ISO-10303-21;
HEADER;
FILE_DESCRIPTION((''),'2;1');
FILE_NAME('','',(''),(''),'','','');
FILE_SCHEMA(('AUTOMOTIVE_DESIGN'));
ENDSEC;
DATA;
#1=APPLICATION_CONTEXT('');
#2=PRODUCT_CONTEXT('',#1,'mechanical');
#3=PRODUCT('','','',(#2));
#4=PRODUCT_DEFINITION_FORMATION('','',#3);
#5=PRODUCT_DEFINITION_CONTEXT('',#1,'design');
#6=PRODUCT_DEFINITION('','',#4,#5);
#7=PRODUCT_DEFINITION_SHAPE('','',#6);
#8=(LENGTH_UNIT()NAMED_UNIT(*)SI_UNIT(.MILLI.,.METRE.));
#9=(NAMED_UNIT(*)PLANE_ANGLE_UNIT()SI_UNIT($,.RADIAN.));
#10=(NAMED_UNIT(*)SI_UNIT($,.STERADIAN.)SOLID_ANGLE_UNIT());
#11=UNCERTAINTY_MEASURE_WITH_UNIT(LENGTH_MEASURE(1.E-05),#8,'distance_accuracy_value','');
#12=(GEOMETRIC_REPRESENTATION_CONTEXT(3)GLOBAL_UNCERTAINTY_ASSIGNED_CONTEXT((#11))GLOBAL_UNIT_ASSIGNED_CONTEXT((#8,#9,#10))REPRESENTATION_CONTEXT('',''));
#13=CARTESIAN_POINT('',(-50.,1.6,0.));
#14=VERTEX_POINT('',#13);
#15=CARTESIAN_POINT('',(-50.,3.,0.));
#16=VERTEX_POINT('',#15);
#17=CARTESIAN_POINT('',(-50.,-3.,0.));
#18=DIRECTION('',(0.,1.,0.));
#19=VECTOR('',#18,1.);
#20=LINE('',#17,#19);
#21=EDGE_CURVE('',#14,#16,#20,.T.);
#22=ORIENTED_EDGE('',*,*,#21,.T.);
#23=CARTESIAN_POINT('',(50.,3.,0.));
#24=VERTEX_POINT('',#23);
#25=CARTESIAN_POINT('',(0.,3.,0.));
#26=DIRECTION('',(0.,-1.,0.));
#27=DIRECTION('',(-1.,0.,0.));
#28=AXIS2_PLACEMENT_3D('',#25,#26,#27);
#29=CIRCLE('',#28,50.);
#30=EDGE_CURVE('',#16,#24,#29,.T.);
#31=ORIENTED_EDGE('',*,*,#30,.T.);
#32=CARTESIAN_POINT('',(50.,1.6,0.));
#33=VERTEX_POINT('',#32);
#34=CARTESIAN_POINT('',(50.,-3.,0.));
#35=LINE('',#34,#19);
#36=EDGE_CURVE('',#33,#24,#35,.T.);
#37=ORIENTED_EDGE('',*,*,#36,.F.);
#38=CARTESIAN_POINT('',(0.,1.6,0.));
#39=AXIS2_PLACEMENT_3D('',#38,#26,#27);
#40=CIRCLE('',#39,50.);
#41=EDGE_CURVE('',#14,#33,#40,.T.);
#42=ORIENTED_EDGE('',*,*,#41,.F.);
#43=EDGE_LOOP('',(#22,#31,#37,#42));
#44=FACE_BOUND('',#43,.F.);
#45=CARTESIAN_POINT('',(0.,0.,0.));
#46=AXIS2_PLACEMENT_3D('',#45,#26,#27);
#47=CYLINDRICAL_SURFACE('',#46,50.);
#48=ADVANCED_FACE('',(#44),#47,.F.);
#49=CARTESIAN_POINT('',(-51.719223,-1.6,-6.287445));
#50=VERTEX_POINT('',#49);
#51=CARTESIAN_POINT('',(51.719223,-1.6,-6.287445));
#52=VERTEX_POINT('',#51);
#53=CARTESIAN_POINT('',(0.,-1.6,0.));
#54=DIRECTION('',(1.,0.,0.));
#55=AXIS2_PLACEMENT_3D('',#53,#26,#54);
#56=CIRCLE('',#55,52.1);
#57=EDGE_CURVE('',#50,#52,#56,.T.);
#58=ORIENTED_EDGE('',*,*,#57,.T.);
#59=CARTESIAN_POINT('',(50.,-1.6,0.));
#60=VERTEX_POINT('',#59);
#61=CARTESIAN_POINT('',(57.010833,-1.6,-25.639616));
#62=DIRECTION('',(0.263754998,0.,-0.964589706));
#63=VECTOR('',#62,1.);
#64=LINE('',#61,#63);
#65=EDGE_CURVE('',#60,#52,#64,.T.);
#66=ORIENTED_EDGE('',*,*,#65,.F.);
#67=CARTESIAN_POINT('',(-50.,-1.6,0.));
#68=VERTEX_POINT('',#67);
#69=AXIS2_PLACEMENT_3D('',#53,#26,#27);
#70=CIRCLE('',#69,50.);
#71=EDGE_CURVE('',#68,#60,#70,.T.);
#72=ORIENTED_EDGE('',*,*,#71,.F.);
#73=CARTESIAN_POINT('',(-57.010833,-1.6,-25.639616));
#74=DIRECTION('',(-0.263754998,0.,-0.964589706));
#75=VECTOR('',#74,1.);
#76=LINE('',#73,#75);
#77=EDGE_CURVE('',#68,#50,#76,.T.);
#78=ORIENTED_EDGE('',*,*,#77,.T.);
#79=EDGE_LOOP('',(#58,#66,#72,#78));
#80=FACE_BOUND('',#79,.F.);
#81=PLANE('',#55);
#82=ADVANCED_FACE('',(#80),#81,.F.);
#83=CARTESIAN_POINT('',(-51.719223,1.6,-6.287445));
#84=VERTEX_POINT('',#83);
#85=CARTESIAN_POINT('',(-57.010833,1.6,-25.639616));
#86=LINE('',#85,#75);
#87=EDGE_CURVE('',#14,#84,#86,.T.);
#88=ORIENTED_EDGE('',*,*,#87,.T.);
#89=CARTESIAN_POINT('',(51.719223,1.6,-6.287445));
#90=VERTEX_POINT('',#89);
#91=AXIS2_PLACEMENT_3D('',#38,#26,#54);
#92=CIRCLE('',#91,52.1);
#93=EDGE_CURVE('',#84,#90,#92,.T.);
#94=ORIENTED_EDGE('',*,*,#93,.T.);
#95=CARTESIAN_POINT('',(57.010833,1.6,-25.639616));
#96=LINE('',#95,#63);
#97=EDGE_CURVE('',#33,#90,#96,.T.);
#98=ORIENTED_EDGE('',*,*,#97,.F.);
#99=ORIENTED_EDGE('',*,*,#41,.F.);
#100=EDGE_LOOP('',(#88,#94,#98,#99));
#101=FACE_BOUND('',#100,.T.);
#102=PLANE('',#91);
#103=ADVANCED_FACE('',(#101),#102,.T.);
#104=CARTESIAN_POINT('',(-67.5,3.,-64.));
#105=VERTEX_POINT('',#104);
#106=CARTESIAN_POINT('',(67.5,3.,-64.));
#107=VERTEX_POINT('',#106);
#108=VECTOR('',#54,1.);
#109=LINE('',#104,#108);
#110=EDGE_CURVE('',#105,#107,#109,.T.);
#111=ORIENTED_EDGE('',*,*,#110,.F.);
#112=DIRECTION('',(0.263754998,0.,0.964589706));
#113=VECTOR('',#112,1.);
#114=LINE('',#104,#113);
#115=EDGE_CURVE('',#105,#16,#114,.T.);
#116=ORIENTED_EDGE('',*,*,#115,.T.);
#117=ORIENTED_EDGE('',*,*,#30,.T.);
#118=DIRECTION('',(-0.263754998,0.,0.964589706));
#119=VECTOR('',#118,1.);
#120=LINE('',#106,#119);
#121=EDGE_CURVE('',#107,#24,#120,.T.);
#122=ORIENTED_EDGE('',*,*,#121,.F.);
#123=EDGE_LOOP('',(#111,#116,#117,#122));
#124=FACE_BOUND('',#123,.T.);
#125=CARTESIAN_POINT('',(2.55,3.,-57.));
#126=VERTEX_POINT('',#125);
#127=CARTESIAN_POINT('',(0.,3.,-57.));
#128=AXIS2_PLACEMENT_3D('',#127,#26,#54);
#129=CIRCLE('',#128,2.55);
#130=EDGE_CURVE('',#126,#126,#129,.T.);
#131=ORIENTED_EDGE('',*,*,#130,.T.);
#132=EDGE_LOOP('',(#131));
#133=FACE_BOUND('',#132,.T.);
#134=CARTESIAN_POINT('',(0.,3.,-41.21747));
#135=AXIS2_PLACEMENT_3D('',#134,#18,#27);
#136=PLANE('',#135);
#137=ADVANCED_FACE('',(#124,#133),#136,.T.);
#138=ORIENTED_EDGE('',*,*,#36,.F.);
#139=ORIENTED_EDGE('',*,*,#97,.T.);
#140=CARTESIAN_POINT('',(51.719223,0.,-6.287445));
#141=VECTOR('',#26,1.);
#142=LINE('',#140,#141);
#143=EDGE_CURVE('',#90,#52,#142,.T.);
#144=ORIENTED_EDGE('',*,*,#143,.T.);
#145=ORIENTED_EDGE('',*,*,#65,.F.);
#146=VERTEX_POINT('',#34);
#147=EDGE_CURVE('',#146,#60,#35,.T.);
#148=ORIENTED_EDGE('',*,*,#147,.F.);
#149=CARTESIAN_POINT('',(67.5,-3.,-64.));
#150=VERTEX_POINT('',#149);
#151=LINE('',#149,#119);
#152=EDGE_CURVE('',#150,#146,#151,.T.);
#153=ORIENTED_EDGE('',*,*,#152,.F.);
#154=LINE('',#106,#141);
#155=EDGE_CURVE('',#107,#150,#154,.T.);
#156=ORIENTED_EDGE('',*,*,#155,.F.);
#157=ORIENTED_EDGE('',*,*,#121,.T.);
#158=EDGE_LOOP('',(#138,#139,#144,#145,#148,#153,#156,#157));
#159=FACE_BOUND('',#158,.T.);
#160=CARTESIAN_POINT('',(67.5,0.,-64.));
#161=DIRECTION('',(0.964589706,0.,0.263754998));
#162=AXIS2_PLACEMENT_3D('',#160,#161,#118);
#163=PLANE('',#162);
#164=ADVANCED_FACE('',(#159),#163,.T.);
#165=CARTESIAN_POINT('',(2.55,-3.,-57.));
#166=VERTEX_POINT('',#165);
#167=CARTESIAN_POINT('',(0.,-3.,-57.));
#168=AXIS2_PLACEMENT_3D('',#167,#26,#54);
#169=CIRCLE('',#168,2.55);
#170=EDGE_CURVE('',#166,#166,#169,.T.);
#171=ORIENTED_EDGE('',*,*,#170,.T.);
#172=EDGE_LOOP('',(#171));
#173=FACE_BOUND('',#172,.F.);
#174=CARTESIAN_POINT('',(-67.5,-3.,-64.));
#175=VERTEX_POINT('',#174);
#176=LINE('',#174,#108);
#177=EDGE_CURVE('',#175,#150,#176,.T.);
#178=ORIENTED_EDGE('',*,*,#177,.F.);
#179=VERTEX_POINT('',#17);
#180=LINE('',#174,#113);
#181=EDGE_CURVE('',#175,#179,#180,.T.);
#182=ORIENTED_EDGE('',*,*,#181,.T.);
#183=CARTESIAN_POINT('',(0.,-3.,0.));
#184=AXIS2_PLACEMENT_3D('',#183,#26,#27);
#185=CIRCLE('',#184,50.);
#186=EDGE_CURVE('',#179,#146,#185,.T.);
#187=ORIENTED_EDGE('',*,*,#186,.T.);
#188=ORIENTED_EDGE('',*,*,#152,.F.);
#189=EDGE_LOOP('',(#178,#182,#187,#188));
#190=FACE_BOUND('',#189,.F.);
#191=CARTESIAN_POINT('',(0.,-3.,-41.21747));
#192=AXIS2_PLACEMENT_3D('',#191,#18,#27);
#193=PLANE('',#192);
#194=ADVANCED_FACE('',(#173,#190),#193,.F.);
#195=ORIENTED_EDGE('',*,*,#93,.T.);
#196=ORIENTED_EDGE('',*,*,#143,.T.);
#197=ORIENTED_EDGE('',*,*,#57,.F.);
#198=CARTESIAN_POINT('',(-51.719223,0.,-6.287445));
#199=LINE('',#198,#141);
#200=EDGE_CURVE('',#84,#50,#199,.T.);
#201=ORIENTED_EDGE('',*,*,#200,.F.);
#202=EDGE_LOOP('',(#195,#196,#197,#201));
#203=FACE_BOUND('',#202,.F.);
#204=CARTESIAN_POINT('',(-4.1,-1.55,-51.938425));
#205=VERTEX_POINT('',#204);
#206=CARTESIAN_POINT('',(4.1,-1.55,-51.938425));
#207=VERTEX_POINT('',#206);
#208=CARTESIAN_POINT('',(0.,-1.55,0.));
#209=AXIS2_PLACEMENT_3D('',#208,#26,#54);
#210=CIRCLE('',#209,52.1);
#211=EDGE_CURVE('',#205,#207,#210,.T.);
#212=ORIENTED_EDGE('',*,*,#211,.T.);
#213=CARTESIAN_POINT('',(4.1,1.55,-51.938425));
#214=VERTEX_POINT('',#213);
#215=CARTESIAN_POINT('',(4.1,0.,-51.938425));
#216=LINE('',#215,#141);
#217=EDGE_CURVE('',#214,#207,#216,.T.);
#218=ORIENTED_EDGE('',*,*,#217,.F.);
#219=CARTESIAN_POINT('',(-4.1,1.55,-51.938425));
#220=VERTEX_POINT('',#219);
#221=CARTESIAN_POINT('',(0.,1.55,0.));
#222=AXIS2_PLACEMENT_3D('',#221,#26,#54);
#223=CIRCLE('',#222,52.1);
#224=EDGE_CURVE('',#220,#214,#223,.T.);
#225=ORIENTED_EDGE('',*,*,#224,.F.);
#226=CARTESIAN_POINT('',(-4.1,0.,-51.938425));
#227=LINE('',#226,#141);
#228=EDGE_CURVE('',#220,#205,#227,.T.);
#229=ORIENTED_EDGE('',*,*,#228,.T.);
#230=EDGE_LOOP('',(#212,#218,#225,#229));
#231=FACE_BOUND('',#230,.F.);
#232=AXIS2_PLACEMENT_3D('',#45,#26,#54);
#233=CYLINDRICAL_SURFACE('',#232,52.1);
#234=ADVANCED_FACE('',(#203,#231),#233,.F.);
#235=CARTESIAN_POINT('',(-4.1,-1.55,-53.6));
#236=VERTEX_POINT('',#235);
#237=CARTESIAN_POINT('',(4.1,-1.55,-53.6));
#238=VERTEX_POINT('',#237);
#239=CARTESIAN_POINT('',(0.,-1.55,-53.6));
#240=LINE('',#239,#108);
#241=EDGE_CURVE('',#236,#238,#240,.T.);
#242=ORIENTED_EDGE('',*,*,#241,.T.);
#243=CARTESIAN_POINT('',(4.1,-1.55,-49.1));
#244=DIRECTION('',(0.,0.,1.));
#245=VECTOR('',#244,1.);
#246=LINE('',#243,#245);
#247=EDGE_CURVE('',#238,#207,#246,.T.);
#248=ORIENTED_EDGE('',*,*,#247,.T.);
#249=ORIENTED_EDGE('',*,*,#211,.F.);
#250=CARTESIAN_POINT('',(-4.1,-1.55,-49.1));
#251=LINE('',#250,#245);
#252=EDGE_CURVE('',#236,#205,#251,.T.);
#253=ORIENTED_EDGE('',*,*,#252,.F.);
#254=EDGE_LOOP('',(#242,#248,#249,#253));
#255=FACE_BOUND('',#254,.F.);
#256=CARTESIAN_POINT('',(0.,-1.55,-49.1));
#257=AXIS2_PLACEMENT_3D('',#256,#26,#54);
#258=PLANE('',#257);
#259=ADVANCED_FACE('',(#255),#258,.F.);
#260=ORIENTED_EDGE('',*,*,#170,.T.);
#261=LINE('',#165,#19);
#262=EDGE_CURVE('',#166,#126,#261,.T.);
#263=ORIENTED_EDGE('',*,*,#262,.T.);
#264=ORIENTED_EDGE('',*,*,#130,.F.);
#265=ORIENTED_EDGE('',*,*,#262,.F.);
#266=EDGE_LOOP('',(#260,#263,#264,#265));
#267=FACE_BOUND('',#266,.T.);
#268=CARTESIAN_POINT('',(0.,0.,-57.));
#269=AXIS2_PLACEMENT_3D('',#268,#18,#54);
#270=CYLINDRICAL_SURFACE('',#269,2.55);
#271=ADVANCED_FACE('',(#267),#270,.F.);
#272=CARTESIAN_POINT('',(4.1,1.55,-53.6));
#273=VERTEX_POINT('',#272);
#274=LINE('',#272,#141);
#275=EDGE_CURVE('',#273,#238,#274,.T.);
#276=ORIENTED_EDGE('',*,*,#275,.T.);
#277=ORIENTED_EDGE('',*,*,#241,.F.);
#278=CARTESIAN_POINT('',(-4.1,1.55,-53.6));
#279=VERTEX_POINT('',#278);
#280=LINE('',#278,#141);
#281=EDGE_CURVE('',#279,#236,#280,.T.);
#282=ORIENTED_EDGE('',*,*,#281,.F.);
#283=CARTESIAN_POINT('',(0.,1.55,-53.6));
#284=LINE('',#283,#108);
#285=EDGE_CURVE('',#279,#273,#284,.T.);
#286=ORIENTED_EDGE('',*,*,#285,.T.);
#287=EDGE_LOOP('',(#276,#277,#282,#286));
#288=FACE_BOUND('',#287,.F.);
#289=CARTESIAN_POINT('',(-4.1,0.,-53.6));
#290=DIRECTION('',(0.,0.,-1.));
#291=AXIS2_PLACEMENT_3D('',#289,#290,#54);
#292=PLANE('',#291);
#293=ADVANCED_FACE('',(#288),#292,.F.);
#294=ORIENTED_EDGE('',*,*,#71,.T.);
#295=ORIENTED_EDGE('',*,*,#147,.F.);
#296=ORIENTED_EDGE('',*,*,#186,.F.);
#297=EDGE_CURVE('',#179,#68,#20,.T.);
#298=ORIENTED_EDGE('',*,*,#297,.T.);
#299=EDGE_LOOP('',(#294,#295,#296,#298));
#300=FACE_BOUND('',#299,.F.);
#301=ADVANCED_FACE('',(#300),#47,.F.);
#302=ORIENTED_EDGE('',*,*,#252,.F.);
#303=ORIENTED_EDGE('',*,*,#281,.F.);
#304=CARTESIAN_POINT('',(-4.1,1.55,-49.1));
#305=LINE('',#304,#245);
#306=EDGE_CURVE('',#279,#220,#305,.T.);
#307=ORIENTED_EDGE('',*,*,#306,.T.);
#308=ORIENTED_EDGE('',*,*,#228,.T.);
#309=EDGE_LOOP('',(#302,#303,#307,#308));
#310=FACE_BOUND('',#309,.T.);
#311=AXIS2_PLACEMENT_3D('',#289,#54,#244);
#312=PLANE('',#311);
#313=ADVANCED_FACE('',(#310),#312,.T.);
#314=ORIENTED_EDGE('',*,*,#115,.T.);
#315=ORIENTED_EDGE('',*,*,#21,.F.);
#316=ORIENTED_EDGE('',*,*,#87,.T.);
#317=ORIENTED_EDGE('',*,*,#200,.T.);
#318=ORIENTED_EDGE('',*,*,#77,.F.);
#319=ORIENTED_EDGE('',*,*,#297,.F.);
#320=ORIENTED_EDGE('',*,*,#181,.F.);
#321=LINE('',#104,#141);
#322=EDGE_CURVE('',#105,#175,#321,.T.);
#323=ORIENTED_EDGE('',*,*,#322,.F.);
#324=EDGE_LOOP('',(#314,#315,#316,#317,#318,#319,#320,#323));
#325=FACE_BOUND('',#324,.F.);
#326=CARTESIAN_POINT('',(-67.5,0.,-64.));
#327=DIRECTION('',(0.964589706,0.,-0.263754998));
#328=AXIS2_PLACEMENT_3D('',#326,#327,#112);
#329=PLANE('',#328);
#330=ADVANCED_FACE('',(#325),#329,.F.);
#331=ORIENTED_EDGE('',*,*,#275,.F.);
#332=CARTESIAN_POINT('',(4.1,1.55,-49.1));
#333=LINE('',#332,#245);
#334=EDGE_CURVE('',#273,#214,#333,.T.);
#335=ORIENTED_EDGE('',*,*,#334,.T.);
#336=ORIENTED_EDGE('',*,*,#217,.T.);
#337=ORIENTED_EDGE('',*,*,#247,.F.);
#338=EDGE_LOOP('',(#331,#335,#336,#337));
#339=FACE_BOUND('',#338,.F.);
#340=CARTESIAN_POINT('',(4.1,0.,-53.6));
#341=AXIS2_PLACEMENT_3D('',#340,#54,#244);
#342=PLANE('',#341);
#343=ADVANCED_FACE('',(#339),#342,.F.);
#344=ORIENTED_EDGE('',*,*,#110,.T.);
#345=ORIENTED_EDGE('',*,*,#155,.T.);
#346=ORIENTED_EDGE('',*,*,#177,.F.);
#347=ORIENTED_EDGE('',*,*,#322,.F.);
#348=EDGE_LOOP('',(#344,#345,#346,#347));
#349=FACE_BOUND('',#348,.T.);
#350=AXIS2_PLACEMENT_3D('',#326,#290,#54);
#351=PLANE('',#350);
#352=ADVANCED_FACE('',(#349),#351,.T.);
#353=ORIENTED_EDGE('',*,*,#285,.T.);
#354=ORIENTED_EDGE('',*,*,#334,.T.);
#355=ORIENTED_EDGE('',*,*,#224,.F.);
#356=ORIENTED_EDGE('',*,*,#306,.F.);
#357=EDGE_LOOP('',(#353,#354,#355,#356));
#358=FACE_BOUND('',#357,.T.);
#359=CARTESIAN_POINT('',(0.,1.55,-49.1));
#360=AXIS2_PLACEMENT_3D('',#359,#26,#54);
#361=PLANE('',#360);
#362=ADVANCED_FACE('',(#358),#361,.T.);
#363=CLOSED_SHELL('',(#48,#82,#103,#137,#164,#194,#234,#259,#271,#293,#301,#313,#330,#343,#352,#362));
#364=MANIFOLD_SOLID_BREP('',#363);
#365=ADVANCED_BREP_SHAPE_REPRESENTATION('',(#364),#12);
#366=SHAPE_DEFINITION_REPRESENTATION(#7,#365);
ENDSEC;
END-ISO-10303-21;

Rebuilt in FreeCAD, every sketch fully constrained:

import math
import FreeCAD as App
import Part
import Sketcher

V = App.Vector
Q = App.Units.Quantity


def add_polygon(sketch, points):
    """Adds a closed chain of lines whose ends are joined by coincident constraints."""
    first, n = sketch.GeometryCount, len(points)
    for a, b in zip(points, points[1:] + points[:1]):
        sketch.addGeometry(Part.LineSegment(App.Vector(*a, 0), App.Vector(*b, 0)), False)
    for i in range(n):
        sketch.addConstraint(Sketcher.Constraint("Coincident", first + i, 2, first + (i + 1) % n, 1))

doc = App.newDocument("Part")
body = doc.addObject("PartDesign::Body", "Body")

# Sketch on XZ plane
sketch1 = body.newObject("Sketcher::SketchObject", "Sketch")
sketch1.AttachmentSupport = (doc.getObject("XZ_Plane"), [""])
sketch1.MapMode = "FlatFace"
sketch1.addGeometry(Part.LineSegment(V(-50, 0, 0), V(-67.5, -64, 0)), False)
sketch1.addGeometry(Part.LineSegment(V(-67.5, -64, 0), V(67.5, -64, 0)), False)
sketch1.addGeometry(Part.LineSegment(V(67.5, -64, 0), V(50, 0, 0)), False)
sketch1.addGeometry(Part.ArcOfCircle(Part.Circle(V(0, 0, 0), V(0, 0, 1), 50), math.radians(180), math.radians(360)), False)
sketch1.addGeometry(Part.Circle(V(0, -57, 0), V(0, 0, 1), 2.5), False)
sketch1.addConstraint(Sketcher.Constraint("Coincident", 0, 2, 1, 1))
sketch1.addConstraint(Sketcher.Constraint("Coincident", 1, 2, 2, 1))
sketch1.addConstraint(Sketcher.Constraint("Coincident", 2, 2, 3, 2))
sketch1.addConstraint(Sketcher.Constraint("Coincident", 3, 1, 0, 1))
sketch1.addConstraint(Sketcher.Constraint("Horizontal", 1))
sketch1.addConstraint(Sketcher.Constraint("Coincident", 3, 3, -1, 1))
sketch1.addConstraint(Sketcher.Constraint("PointOnObject", 4, 3, -2))
sketch1.addConstraint(Sketcher.Constraint("PointOnObject", 2, 2, -1))
sketch1.addConstraint(Sketcher.Constraint("PointOnObject", 3, 1, -1))
sketch1.addConstraint(Sketcher.Constraint("Equal", 0, 2))
sketch1.addConstraint(Sketcher.Constraint("Radius", 3, Q("50 mm")))
sketch1.addConstraint(Sketcher.Constraint("Diameter", 4, Q("5.1 mm")))
sketch1.addConstraint(Sketcher.Constraint("DistanceX", 1, 1, 1, 2, Q("135 mm")))
sketch1.addConstraint(Sketcher.Constraint("DistanceY", 4, 3, -1, 1, Q("57 mm")))
sketch1.addConstraint(Sketcher.Constraint("DistanceY", 0, 2, -1, 1, Q("64 mm")))
pad1 = body.newObject("PartDesign::Pad", "Pad")
pad1.Profile = sketch1
pad1.Length = 6
pad1.Midplane = True

# Sketch on XZ plane
sketch2 = body.newObject("Sketcher::SketchObject", "Sketch001")
sketch2.AttachmentSupport = (doc.getObject("XZ_Plane"), [""])
sketch2.MapMode = "FlatFace"
sketch2.addGeometry(Part.Circle(V(0, 0, 0), V(0, 0, 1), 52), False)
sketch2.addConstraint(Sketcher.Constraint("Coincident", 0, 3, -1, 1))
sketch2.addConstraint(Sketcher.Constraint("Diameter", 0, Q("104.2 mm")))
pocket1 = body.newObject("PartDesign::Pocket", "Pocket")
pocket1.Profile = sketch2
pocket1.Length = 3.2
pocket1.Midplane = True

# Sketch on XZ plane
sketch3 = body.newObject("Sketcher::SketchObject", "Sketch002")
sketch3.AttachmentSupport = (doc.getObject("XZ_Plane"), [""])
sketch3.MapMode = "FlatFace"
add_polygon(sketch3, [(-4, -45), (-4, -54), (4, -54), (4, -45)])  # lines 0-3
sketch3.addConstraint(Sketcher.Constraint("Vertical", 0))
sketch3.addConstraint(Sketcher.Constraint("Horizontal", 1))
sketch3.addConstraint(Sketcher.Constraint("Vertical", 2))
sketch3.addConstraint(Sketcher.Constraint("Horizontal", 3))
sketch3.addConstraint(Sketcher.Constraint("DistanceY", 0, 2, 0, 1, Q("9 mm")))
sketch3.addConstraint(Sketcher.Constraint("DistanceX", 1, 1, 1, 2, Q("8.2 mm")))
sketch3.addConstraint(Sketcher.Constraint("DistanceX", 0, 2, -1, 1, Q("4.1 mm")))
sketch3.addConstraint(Sketcher.Constraint("DistanceY", 0, 2, -1, 1, Q("53.6 mm")))
pocket2 = body.newObject("PartDesign::Pocket", "Pocket001")
pocket2.Profile = sketch3
pocket2.Length = 3.1
pocket2.Midplane = True

doc.recompute()
